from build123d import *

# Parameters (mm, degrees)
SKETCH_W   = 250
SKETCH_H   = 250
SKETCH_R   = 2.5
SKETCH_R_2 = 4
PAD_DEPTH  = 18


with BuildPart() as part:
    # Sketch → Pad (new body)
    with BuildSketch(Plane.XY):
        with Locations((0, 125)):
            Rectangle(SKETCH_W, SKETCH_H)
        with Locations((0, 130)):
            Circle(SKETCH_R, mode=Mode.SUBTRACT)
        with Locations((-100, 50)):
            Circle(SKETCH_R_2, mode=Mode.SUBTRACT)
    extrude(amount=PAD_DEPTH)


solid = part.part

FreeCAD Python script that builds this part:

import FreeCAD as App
import Part
import Sketcher
Q = App.Units.Quantity


def add_polygon(sketch, points):
    """Adds a closed chain of lines whose ends are joined by coincident constraints."""
    first, n = sketch.GeometryCount, len(points)
    for a, b in zip(points, points[1:] + points[:1]):
        sketch.addGeometry(Part.LineSegment(App.Vector(*a, 0), App.Vector(*b, 0)), False)
    for i in range(n):
        sketch.addConstraint(Sketcher.Constraint("Coincident", first + i, 2, first + (i + 1) % n, 1))

doc = App.newDocument("Part")
params = doc.addObject("Spreadsheet::Sheet", "Params")
for row, (alias, value) in enumerate([
    ("sketch1_diameter", "8 mm"),
    ("sketch1_diameter2", "5 mm"),
    ("sketch1_width", "250 mm"),
    ("pad1_length", "18 mm"),
], start=1):
    params.set(f"A{row}", alias)
    params.set(f"B{row}", "=" + value)
    params.setAlias(f"B{row}", alias)

body = doc.addObject("PartDesign::Body", "Body")

# Sketch on XY plane
sketch1 = body.newObject("Sketcher::SketchObject", "Sketch")
sketch1.AttachmentSupport = (doc.getObject("XY_Plane"), [""])
sketch1.MapMode = "FlatFace"
add_polygon(sketch1, [(-125, 250), (-125, 0), (125, 0), (125, 250)])  # lines 0-3
sketch1.addGeometry(Part.Circle(App.Vector(-100, 50, 0), App.Vector(0, 0, 1), 4), False)  # 4
sketch1.addGeometry(Part.Circle(App.Vector(0, 130, 0), App.Vector(0, 0, 1), 2.5), False)  # 5
sketch1.addConstraint([
    Sketcher.Constraint("Vertical", 0),
    Sketcher.Constraint("Horizontal", 1),
    Sketcher.Constraint("Vertical", 2),
    Sketcher.Constraint("Horizontal", 3),
    Sketcher.Constraint("Symmetric", 0, 2, 1, 2, -1, 1),
    Sketcher.Constraint("PointOnObject", 5, 3, -2),
    Sketcher.Constraint("Equal", 3, 0),
    Sketcher.Constraint("Diameter", 4, Q("8 mm")),
    Sketcher.Constraint("Diameter", 5, Q("5 mm")),
    Sketcher.Constraint("DistanceX", 1, 1, 1, 2, Q("250 mm")),
    Sketcher.Constraint("DistanceX", 4, 3, -1, 1, Q("100 mm")),
    Sketcher.Constraint("DistanceY", -1, 1, 4, 3, Q("50 mm")),
    Sketcher.Constraint("DistanceY", -1, 1, 5, 3, Q("130 mm")),
])
sketch1.setExpression("Constraints[11]", "Params.sketch1_diameter")
sketch1.setExpression("Constraints[12]", "Params.sketch1_diameter2")
sketch1.setExpression("Constraints[13]", "Params.sketch1_width")
pad1 = body.newObject("PartDesign::Pad", "Pad")
pad1.Profile = sketch1
pad1.setExpression("Length", "Params.pad1_length")

doc.recompute()
